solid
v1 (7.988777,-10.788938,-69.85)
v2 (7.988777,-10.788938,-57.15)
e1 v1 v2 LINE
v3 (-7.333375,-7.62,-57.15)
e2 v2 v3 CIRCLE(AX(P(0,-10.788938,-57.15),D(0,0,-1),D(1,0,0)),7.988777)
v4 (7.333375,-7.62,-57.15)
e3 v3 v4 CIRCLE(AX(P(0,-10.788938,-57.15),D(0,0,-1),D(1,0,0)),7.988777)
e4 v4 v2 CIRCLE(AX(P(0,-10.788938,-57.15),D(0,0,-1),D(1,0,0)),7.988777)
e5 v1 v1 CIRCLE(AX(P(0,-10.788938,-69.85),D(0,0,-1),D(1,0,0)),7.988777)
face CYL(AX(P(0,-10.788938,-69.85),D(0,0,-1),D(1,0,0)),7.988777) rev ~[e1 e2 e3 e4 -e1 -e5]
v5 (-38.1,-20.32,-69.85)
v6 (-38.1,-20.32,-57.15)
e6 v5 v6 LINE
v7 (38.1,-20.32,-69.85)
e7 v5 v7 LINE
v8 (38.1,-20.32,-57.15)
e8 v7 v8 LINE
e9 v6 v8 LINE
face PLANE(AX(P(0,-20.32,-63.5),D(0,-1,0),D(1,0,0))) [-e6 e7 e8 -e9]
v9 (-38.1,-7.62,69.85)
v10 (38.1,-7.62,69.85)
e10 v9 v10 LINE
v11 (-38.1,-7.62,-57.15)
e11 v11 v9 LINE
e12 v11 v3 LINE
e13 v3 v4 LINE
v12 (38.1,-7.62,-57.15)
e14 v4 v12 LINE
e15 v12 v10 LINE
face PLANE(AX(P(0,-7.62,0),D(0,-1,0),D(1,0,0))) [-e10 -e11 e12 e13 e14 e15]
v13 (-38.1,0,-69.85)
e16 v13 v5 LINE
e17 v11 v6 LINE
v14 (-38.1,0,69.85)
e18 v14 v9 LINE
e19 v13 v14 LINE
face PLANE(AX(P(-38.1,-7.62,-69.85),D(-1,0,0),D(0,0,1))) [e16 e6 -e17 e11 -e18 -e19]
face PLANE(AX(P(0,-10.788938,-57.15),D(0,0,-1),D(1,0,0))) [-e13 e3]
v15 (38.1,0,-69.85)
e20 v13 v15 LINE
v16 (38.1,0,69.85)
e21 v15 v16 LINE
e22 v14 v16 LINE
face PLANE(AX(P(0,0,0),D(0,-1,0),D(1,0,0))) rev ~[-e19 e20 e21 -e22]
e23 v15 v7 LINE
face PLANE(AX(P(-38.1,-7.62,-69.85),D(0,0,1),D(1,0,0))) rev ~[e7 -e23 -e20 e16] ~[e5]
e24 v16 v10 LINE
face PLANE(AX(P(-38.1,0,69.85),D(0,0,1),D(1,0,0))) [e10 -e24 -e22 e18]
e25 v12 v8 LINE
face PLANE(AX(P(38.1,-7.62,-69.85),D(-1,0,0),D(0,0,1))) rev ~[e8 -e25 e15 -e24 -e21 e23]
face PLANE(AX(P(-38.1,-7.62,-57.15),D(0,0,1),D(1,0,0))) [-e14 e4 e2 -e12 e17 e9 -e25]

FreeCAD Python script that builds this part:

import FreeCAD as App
import Part
import Sketcher
Q = App.Units.Quantity

doc = App.newDocument("Part")
body = doc.addObject("PartDesign::Body", "Body")

sketch1 = body.newObject("Sketcher::SketchObject", "Sketch")
sketch1.AttachmentSupport = (doc.getObject("XZ_Plane"), [""])
sketch1.MapMode = "FlatFace"
sketch1.addGeometry([
    Part.LineSegment(App.Vector(-38, 70, 0), App.Vector(-38, -70, 0)),
    Part.LineSegment(App.Vector(-38, -70, 0), App.Vector(38, -70, 0)),
    Part.LineSegment(App.Vector(38, -70, 0), App.Vector(38, 70, 0)),
    Part.LineSegment(App.Vector(38, 70, 0), App.Vector(-38, 70, 0)),
], False)
sketch1.addConstraint([
    Sketcher.Constraint("Coincident", 0, 2, 1, 1),
    Sketcher.Constraint("Coincident", 1, 2, 2, 1),
    Sketcher.Constraint("Coincident", 2, 2, 3, 1),
    Sketcher.Constraint("Coincident", 3, 2, 0, 1),
    Sketcher.Constraint("Vertical", 0),
    Sketcher.Constraint("Horizontal", 1),
    Sketcher.Constraint("Vertical", 2),
    Sketcher.Constraint("Horizontal", 3),
    Sketcher.Constraint("Symmetric", 0, 2, 2, 2, -1, 1),
    Sketcher.Constraint("DistanceX", 1, 1, 1, 2, Q("3 in")),
    Sketcher.Constraint("DistanceY", 0, 2, 0, 1, Q("5.5 in")),
])
pad1 = body.newObject("PartDesign::Pad", "Pad")
pad1.Profile = sketch1
pad1.Length = Q("0.3 in")

sketch2 = body.newObject("Sketcher::SketchObject", "Sketch001")
sketch2.AttachmentSupport = (doc.getObject("XZ_Plane"), [""])
sketch2.MapMode = "FlatFace"
sketch2.AttachmentOffset = App.Placement(App.Vector(0, 0, 0.3 * 25.4), App.Rotation())
sketch2.addGeometry([
    Part.LineSegment(App.Vector(-38, -57, 0), App.Vector(-38, -70, 0)),
    Part.LineSegment(App.Vector(-38, -70, 0), App.Vector(38, -70, 0)),
    Part.LineSegment(App.Vector(38, -70, 0), App.Vector(38, -57, 0)),
    Part.LineSegment(App.Vector(38, -57, 0), App.Vector(-38, -57, 0)),
], False)
sketch2.addConstraint([
    Sketcher.Constraint("Coincident", 0, 2, 1, 1),
    Sketcher.Constraint("Coincident", 1, 2, 2, 1),
    Sketcher.Constraint("Coincident", 2, 2, 3, 1),
    Sketcher.Constraint("Coincident", 3, 2, 0, 1),
    Sketcher.Constraint("Vertical", 0),
    Sketcher.Constraint("Horizontal", 1),
    Sketcher.Constraint("Vertical", 2),
    Sketcher.Constraint("Horizontal", 3),
    Sketcher.Constraint("DistanceX", 1, 1, 1, 2, Q("3 in")),
    Sketcher.Constraint("DistanceY", 0, 2, 0, 1, Q("0.5 in")),
    Sketcher.Constraint("DistanceX", 0, 2, -1, 1, Q("1.5 in")),
    Sketcher.Constraint("DistanceY", 0, 2, -1, 1, Q("2.75 in")),
])
pad2 = body.newObject("PartDesign::Pad", "Pad001")
pad2.Profile = sketch2
pad2.Length = Q("0.5 in")

sketch3 = body.newObject("Sketcher::SketchObject", "Sketch002")
sketch3.AttachmentSupport = (doc.getObject("XY_Plane"), [""])
sketch3.MapMode = "FlatFace"
sketch3.AttachmentOffset = App.Placement(App.Vector(0, 0, -2.75 * 25.4), App.Rotation())
sketch3.addGeometry(Part.Circle(App.Vector(0, -11, 0), App.Vector(0, 0, 1), 8), False)
sketch3.addConstraint([
    Sketcher.Constraint("PointOnObject", 0, 3, -2),
    Sketcher.Constraint("Diameter", 0, Q("15.977554 mm")),
    Sketcher.Constraint("DistanceY", 0, 3, -1, 1, Q("10.788938 mm")),
])
pocket1 = body.newObject("PartDesign::Pocket", "Pocket")
pocket1.Profile = sketch3
pocket1.Length = Q("0.5 in")
pocket1.Reversed = True

doc.recompute()
